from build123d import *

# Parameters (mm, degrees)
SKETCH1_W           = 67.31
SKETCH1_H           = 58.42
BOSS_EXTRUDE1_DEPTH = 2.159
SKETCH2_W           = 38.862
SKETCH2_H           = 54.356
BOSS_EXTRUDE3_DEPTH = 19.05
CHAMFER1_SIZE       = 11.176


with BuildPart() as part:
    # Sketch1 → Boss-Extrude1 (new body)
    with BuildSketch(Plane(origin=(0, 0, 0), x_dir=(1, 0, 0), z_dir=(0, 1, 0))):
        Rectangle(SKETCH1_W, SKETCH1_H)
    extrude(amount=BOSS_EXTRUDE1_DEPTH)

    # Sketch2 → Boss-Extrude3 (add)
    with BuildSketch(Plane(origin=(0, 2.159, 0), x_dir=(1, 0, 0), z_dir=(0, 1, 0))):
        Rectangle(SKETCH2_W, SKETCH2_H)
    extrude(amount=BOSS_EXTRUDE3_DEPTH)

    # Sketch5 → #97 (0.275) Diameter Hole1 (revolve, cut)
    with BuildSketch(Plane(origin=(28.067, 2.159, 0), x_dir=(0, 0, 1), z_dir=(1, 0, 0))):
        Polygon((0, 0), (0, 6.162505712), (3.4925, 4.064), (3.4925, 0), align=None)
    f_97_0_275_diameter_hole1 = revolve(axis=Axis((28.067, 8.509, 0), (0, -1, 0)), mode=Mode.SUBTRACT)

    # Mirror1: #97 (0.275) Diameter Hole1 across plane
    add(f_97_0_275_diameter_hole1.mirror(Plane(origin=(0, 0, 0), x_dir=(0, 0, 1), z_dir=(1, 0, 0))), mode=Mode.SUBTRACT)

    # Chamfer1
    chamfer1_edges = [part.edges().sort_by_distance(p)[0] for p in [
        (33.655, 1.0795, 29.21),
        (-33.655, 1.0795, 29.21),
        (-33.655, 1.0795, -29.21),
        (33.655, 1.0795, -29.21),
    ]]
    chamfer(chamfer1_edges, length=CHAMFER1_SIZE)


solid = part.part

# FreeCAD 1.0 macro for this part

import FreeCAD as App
import Part
import Sketcher
Q = App.Units.Quantity


def edges_at(feature, points):
    """Names of the edges that pass closest to the given points."""
    edges = feature.Shape.Edges
    near = lambda p: min(range(len(edges)), key=lambda i: edges[i].distToShape(Part.Vertex(*p))[0])
    return sorted({f"Edge{near(p) + 1}" for p in points})


def add_polygon(sketch, points):
    """Adds a closed chain of lines whose ends are joined by coincident constraints."""
    first, n = sketch.GeometryCount, len(points)
    for a, b in zip(points, points[1:] + points[:1]):
        sketch.addGeometry(Part.LineSegment(App.Vector(*a, 0), App.Vector(*b, 0)), False)
    for i in range(n):
        sketch.addConstraint(Sketcher.Constraint("Coincident", first + i, 2, first + (i + 1) % n, 1))

doc = App.newDocument("Part")
body = doc.addObject("PartDesign::Body", "Body")

# Sketch on XZ plane
sketch1 = body.newObject("Sketcher::SketchObject", "Sketch")
sketch1.AttachmentSupport = (doc.getObject("XZ_Plane"), [""])
sketch1.MapMode = "FlatFace"
add_polygon(sketch1, [(-33.655, -29.21), (-33.655, 29.21), (33.655, 29.21), (33.655, -29.21)])  # lines 0-3
sketch1.addConstraint(Sketcher.Constraint("Vertical", 0))
sketch1.addConstraint(Sketcher.Constraint("Horizontal", 1))
sketch1.addConstraint(Sketcher.Constraint("Vertical", 2))
sketch1.addConstraint(Sketcher.Constraint("Horizontal", 3))
sketch1.addConstraint(Sketcher.Constraint("Symmetric", 0, 2, 2, 2, -1, 1))
sketch1.addConstraint(Sketcher.Constraint("DistanceY", 0, 1, 0, 2, Q("2.3 in")))
sketch1.addConstraint(Sketcher.Constraint("DistanceX", 1, 1, 1, 2, Q("2.65 in")))
pad1 = body.newObject("PartDesign::Pad", "Pad")
pad1.Profile = sketch1
pad1.Length = Q("0.085 in")
pad1.Reversed = True

# Sketch on XZ plane
sketch2 = body.newObject("Sketcher::SketchObject", "Sketch001")
sketch2.AttachmentSupport = (doc.getObject("XZ_Plane"), [""])
sketch2.MapMode = "FlatFace"
sketch2.AttachmentOffset = App.Placement(App.Vector(0, 0, -0.085 * 25.4), App.Rotation())
add_polygon(sketch2, [(-19.431, -27.178), (-19.431, 27.178), (19.431, 27.178), (19.431, -27.178)])  # lines 0-3
sketch2.addConstraint(Sketcher.Constraint("Vertical", 0))
sketch2.addConstraint(Sketcher.Constraint("Horizontal", 1))
sketch2.addConstraint(Sketcher.Constraint("Vertical", 2))
sketch2.addConstraint(Sketcher.Constraint("Horizontal", 3))
sketch2.addConstraint(Sketcher.Constraint("Symmetric", 0, 2, 2, 2, -1, 1))
sketch2.addConstraint(Sketcher.Constraint("DistanceX", 1, 1, 1, 2, Q("1.53 in")))
sketch2.addConstraint(Sketcher.Constraint("DistanceY", 0, 1, 0, 2, Q("2.14 in")))
pad2 = body.newObject("PartDesign::Pad", "Pad001")
pad2.Profile = sketch2
pad2.Length = Q("0.75 in")
pad2.Reversed = True

# Sketch on YZ plane
sketch3 = body.newObject("Sketcher::SketchObject", "Sketch002")
sketch3.AttachmentSupport = (doc.getObject("YZ_Plane"), [""])
sketch3.MapMode = "FlatFace"
sketch3.AttachmentOffset = App.Placement(App.Vector(0, 0, 1.105 * 25.4), App.Rotation())
add_polygon(sketch3, [(-4.003506, 0), (2.159, 0), (2.159, 3.4925), (-1.905, 3.4925)])  # lines 0-3
sketch3.addConstraint(Sketcher.Constraint("Horizontal", 0))
sketch3.addConstraint(Sketcher.Constraint("Vertical", 1))
sketch3.addConstraint(Sketcher.Constraint("Horizontal", 2))
sketch3.addConstraint(Sketcher.Constraint("PointOnObject", 0, 2, -1))
sketch3.addConstraint(Sketcher.Constraint("Angle", 3, Q("-121 deg")))
sketch3.addConstraint(Sketcher.Constraint("DistanceX", 2, 2, 2, 1, Q("0.16 in")))
sketch3.addConstraint(Sketcher.Constraint("DistanceY", 1, 1, 1, 2, Q("0.1375 in")))
sketch3.addConstraint(Sketcher.Constraint("DistanceX", -1, 1, 0, 2, Q("0.085 in")))
groove = body.newObject("PartDesign::Groove", "Groove")
groove.Profile = sketch3
groove.ReferenceAxis = (sketch3, ["H_Axis"])
groove.Angle = 360
doc.recompute()

mirrored = body.newObject("PartDesign::Mirrored", "Mirrored")
mirrored.Originals = [groove]
mirrored.MirrorPlane = (doc.getObject("YZ_Plane"), [""])
body.Tip = mirrored
doc.recompute()

chamfer = body.newObject("PartDesign::Chamfer", "Chamfer")
chamfer.Base = (mirrored, edges_at(mirrored, [
    (33.655, 1.079, 29.21),
    (-33.655, 1.079, 29.21),
    (-33.655, 1.079, -29.21),
    (33.655, 1.079, -29.21),
]))
chamfer.Size = Q("0.44 in")

doc.recompute()
